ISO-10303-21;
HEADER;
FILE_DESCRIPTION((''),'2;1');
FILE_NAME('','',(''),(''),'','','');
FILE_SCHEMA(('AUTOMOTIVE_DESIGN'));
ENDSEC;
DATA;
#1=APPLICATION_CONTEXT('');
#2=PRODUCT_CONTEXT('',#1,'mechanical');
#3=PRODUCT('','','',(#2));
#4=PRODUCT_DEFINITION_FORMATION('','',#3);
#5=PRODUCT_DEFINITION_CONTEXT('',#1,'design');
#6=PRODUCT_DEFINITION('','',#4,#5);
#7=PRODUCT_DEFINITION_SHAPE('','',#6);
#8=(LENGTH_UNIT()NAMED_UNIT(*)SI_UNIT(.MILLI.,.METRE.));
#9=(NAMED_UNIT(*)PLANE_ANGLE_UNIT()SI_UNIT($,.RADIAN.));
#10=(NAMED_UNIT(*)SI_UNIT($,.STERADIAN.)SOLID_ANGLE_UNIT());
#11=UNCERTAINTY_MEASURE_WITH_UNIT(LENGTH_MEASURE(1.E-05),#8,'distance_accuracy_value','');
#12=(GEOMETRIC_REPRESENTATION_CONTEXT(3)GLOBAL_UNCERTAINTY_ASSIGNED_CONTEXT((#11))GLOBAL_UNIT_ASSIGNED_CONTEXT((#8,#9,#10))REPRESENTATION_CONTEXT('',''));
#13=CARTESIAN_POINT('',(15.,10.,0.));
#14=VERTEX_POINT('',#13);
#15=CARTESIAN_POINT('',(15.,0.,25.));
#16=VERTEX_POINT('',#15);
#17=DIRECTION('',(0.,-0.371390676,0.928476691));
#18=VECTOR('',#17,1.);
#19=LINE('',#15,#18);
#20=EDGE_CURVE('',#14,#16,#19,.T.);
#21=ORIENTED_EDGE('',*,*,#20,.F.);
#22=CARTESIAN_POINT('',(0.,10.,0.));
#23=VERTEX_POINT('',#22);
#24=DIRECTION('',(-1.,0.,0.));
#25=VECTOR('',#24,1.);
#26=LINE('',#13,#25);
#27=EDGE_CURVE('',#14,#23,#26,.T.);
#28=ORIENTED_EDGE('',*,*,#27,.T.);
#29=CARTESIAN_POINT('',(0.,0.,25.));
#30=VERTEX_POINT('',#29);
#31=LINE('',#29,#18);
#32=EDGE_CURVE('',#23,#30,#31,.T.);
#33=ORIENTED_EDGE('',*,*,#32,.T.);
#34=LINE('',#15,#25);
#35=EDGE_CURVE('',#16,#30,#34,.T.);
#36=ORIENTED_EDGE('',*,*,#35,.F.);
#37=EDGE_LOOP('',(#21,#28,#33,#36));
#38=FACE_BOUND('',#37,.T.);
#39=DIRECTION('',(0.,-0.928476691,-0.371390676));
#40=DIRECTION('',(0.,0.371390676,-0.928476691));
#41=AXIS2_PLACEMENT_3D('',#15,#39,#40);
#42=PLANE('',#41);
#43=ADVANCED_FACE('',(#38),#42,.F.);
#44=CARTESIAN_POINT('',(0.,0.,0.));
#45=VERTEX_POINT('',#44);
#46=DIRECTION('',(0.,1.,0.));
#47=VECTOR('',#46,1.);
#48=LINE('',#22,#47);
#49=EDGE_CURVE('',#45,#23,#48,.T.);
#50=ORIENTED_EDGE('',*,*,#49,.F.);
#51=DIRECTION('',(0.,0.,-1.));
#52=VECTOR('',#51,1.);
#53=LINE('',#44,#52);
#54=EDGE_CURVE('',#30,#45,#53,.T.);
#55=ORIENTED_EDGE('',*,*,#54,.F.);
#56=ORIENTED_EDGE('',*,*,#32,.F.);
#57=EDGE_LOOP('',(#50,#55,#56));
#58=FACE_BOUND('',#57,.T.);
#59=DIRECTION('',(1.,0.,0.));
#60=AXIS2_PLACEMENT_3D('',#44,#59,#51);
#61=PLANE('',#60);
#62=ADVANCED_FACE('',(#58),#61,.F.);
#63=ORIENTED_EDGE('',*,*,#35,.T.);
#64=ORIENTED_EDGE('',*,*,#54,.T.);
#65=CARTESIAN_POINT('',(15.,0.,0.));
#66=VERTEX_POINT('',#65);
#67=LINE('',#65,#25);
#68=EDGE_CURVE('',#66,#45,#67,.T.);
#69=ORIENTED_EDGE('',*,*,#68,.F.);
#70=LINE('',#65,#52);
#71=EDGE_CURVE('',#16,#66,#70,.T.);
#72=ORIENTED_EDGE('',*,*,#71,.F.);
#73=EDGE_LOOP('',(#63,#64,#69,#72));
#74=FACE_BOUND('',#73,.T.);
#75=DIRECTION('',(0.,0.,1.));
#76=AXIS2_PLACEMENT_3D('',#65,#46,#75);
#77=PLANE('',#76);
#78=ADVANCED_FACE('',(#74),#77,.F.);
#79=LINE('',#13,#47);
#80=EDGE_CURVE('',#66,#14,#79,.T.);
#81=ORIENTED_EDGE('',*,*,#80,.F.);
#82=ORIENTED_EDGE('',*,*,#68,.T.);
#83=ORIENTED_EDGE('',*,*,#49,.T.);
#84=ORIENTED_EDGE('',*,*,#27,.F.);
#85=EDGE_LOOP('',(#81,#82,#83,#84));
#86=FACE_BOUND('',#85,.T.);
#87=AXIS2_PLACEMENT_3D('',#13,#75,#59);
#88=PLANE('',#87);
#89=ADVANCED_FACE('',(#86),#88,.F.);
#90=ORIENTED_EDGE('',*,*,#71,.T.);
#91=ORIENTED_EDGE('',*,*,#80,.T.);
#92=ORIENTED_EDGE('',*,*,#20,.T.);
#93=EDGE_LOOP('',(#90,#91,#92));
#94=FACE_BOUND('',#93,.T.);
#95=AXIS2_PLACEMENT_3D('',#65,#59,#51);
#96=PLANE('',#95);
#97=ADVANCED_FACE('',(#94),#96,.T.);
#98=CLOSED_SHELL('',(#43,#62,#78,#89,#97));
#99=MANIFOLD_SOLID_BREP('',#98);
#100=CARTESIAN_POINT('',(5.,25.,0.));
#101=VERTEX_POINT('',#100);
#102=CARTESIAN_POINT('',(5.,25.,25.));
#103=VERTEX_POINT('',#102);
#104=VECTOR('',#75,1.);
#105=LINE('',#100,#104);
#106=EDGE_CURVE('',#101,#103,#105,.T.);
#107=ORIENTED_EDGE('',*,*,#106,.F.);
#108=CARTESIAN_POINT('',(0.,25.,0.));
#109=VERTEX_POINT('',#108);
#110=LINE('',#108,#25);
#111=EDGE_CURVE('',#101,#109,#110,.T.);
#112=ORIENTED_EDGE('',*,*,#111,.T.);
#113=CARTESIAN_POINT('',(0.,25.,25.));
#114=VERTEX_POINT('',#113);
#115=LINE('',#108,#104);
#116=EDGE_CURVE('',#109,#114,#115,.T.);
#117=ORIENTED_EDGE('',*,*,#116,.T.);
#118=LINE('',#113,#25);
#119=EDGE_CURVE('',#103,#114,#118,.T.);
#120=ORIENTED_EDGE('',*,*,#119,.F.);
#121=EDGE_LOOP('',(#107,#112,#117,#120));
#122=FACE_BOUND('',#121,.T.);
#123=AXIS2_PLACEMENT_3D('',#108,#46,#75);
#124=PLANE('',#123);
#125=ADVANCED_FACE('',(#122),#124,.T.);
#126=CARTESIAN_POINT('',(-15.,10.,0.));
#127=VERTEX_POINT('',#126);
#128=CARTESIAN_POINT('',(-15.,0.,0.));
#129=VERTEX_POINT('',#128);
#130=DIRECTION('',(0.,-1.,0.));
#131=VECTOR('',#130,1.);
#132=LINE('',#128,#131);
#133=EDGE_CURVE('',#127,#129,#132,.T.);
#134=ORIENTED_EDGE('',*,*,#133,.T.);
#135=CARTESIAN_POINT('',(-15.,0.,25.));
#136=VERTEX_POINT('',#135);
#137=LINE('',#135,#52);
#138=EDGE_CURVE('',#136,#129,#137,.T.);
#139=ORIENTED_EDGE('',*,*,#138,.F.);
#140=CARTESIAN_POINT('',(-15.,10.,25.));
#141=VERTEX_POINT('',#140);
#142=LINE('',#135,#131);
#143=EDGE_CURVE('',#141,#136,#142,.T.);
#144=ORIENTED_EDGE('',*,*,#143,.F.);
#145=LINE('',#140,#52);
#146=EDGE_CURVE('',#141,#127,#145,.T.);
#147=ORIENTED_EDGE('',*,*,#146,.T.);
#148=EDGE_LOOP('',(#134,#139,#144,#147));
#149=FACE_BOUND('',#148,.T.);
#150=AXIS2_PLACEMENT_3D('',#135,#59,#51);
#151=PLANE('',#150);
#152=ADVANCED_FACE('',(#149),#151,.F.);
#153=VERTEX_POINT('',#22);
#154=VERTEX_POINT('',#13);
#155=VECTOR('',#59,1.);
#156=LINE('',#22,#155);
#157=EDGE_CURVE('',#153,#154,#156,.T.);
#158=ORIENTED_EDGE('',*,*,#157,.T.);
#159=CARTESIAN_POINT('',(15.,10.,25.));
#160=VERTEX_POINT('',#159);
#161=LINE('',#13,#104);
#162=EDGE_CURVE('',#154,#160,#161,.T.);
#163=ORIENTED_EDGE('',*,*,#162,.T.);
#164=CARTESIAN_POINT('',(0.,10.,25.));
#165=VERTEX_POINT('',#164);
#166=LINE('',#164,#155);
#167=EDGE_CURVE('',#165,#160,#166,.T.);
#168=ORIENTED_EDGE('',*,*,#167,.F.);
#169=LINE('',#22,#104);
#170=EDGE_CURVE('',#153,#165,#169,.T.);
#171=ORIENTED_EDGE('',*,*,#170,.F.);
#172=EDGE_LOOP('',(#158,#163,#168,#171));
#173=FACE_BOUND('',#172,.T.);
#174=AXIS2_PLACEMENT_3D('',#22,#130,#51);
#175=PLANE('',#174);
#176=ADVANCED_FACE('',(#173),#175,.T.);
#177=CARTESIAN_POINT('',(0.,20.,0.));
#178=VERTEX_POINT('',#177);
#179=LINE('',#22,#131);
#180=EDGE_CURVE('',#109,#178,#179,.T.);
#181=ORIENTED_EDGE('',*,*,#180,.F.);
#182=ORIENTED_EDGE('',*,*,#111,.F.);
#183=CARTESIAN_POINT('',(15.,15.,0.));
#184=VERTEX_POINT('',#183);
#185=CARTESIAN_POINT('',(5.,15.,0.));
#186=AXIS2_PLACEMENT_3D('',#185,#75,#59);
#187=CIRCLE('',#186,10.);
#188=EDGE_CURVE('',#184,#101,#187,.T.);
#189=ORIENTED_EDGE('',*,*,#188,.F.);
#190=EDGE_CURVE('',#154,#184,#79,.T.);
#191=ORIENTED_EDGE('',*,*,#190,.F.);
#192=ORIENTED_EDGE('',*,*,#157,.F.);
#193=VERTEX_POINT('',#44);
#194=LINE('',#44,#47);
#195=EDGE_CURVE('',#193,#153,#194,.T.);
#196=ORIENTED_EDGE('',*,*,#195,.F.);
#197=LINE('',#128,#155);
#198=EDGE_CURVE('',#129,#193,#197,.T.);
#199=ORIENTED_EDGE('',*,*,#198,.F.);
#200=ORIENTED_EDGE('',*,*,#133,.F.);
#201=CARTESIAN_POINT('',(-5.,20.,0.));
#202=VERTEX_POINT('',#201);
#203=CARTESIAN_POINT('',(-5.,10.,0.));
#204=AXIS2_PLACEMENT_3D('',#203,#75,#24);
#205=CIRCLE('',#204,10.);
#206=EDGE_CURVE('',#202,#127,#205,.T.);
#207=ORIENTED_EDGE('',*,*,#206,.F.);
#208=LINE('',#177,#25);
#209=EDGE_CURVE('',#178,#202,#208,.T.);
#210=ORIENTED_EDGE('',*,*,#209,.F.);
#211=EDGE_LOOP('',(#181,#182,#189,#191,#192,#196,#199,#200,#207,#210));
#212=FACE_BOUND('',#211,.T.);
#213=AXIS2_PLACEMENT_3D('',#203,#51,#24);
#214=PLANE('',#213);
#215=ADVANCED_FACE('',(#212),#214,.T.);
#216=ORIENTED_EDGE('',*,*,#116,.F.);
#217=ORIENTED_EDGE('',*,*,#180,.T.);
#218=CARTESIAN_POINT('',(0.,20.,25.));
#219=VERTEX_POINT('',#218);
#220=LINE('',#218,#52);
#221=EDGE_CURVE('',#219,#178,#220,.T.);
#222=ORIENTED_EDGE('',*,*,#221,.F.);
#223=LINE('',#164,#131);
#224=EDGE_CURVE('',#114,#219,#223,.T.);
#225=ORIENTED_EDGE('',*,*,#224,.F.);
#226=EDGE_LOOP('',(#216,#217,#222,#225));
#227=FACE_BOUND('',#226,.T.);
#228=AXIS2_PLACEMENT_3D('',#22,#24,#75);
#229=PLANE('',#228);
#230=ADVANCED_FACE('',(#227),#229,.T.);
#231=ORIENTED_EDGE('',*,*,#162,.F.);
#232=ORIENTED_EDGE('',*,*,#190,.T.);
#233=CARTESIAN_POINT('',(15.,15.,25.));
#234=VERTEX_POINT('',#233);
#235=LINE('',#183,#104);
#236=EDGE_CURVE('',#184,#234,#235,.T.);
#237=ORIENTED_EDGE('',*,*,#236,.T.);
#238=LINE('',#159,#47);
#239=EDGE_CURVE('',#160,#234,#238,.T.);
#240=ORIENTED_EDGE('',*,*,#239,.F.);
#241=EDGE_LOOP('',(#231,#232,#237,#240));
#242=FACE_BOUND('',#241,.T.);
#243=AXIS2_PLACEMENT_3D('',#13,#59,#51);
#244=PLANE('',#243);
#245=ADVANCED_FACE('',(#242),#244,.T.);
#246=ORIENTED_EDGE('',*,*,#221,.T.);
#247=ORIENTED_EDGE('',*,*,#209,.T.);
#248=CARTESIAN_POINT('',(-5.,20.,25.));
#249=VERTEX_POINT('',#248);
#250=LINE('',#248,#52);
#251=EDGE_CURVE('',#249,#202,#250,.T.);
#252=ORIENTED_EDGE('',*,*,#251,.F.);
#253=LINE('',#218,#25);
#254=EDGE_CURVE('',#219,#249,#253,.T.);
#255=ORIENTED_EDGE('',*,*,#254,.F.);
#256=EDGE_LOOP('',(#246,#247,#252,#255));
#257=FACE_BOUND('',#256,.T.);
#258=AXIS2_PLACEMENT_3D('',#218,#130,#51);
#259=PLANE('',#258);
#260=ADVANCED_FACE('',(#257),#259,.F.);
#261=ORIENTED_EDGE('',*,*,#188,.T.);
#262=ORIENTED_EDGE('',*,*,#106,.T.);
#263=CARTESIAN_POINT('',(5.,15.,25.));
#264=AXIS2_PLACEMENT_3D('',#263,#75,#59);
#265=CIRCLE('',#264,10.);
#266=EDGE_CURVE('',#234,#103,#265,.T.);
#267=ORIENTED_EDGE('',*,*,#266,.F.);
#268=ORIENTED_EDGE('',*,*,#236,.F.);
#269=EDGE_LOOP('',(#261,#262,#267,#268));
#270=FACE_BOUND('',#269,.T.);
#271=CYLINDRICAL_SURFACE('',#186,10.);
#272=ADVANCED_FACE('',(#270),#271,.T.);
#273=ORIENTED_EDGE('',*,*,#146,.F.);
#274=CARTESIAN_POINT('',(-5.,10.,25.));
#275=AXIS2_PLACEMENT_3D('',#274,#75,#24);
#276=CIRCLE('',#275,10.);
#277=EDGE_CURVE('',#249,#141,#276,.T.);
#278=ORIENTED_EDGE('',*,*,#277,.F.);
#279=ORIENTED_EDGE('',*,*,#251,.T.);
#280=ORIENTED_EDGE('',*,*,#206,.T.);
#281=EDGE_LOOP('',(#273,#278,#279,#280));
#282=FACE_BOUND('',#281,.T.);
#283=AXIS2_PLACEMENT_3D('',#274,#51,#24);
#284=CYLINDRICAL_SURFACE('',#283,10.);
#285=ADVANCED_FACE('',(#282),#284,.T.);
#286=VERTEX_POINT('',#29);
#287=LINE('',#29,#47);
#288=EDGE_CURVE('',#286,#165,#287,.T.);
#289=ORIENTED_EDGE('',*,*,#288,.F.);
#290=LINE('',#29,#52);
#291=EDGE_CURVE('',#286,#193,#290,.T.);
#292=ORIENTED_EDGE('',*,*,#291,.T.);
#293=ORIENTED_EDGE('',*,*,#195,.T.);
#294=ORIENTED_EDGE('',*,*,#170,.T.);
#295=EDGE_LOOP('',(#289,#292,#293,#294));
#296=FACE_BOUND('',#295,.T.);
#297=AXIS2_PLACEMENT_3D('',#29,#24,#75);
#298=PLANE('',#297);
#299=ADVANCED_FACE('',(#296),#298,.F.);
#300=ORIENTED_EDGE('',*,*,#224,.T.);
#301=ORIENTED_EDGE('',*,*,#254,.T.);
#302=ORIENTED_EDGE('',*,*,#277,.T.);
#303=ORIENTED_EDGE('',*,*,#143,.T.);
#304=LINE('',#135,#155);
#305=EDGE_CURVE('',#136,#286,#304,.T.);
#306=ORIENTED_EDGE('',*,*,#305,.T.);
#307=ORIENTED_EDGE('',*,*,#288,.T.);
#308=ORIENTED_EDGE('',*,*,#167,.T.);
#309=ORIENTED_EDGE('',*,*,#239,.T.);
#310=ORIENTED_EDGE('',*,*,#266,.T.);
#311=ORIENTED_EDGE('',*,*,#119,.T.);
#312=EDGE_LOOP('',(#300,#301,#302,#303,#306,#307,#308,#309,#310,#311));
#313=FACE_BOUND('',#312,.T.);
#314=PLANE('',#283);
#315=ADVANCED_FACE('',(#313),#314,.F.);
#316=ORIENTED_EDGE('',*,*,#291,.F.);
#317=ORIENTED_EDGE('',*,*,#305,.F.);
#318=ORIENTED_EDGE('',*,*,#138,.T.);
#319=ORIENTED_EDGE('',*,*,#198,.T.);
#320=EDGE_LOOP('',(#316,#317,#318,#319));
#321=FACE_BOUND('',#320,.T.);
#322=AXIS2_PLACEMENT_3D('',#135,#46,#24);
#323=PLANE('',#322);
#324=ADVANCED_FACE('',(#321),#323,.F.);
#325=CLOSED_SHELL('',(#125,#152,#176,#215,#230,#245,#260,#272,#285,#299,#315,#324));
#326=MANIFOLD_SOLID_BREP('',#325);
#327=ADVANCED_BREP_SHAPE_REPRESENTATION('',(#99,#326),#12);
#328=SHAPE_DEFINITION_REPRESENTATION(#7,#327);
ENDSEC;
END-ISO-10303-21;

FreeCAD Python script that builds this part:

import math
import FreeCAD as App
import Part
import Sketcher
from FreeCAD import Vector

doc = App.newDocument("Part")
body = doc.addObject("PartDesign::Body", "Body")

# Sketch on XY plane
sketch1 = body.newObject("Sketcher::SketchObject", "Sketch")
sketch1.AttachmentSupport = (doc.getObject("XY_Plane"), [""])
sketch1.MapMode = "FlatFace"
sketch1.addGeometry([
    Part.LineSegment(Vector(-15, 0, 0), Vector(0, 0, 0)),  # 0
    Part.LineSegment(Vector(0, 0, 0), Vector(0, 20, 0)),  # 1
    Part.LineSegment(Vector(0, 20, 0), Vector(-5, 20, 0)),  # 2
    Part.ArcOfCircle(Part.Circle(Vector(-5, 10, 0), Vector(0, 0, 1), 10), math.radians(90), math.radians(180)),  # 3
    Part.LineSegment(Vector(-15, 10, 0), Vector(-15, 0, 0)),  # 4
], False)
sketch1.addConstraint([
    Sketcher.Constraint("Coincident", 0, 2, 1, 1),
    Sketcher.Constraint("Coincident", 1, 2, 2, 1),
    Sketcher.Constraint("Tangent", 2, 2, 3, 1),
    Sketcher.Constraint("Tangent", 3, 2, 4, 1),
    Sketcher.Constraint("Coincident", 4, 2, 0, 1),
    Sketcher.Constraint("Horizontal", 0),
    Sketcher.Constraint("Vertical", 1),
    Sketcher.Constraint("Horizontal", 2),
    Sketcher.Constraint("Vertical", 4),
    Sketcher.Constraint("Coincident", 0, 2, -1, 1),
    Sketcher.Constraint("Radius", 3, 10.0),
    Sketcher.Constraint("DistanceX", 0, 1, 0, 2, 15.0),
    Sketcher.Constraint("DistanceY", 1, 1, 1, 2, 20.0),
])
pad1 = body.newObject("PartDesign::Pad", "Pad")
pad1.Profile = sketch1
pad1.Length = 25

# Sketch on XY plane
sketch2 = body.newObject("Sketcher::SketchObject", "Sketch001")
sketch2.AttachmentSupport = (doc.getObject("XY_Plane"), [""])
sketch2.MapMode = "FlatFace"
sketch2.AttachmentOffset = App.Placement(Vector(0, 0, 25), App.Rotation())
sketch2.addGeometry([
    Part.LineSegment(Vector(0, 25, 0), Vector(0, 10, 0)),  # 0
    Part.LineSegment(Vector(0, 10, 0), Vector(15, 10, 0)),  # 1
    Part.LineSegment(Vector(15, 10, 0), Vector(15, 15, 0)),  # 2
    Part.ArcOfCircle(Part.Circle(Vector(5, 15, 0), Vector(0, 0, 1), 10), math.radians(0), math.radians(90)),  # 3
    Part.LineSegment(Vector(5, 25, 0), Vector(0, 25, 0)),  # 4
], False)
sketch2.addConstraint([
    Sketcher.Constraint("Coincident", 0, 2, 1, 1),
    Sketcher.Constraint("Coincident", 1, 2, 2, 1),
    Sketcher.Constraint("Tangent", 2, 2, 3, 1),
    Sketcher.Constraint("Tangent", 3, 2, 4, 1),
    Sketcher.Constraint("Coincident", 4, 2, 0, 1),
    Sketcher.Constraint("Vertical", 0),
    Sketcher.Constraint("Horizontal", 1),
    Sketcher.Constraint("Vertical", 2),
    Sketcher.Constraint("Horizontal", 4),
    Sketcher.Constraint("PointOnObject", 0, 2, -2),
    Sketcher.Constraint("Equal", 1, 0),
    Sketcher.Constraint("Radius", 3, 10.0),
    Sketcher.Constraint("DistanceX", 1, 1, 1, 2, 15.0),
    Sketcher.Constraint("DistanceY", -1, 1, 3, 3, 15.0),
])
pad2 = body.newObject("PartDesign::Pad", "Pad001")
pad2.Profile = sketch2
pad2.Length = 25
pad2.Reversed = True
body2 = doc.addObject("PartDesign::Body", "Body001")

# Sketch on YZ plane
sketch3 = body2.newObject("Sketcher::SketchObject", "Sketch002")
sketch3.AttachmentSupport = (doc.getObject("YZ_Plane001"), [""])
sketch3.MapMode = "FlatFace"
sketch3.addGeometry([
    Part.LineSegment(Vector(10, 0, 0), Vector(0, 25, 0)),
    Part.LineSegment(Vector(0, 25, 0), Vector(0, 0, 0)),
    Part.LineSegment(Vector(0, 0, 0), Vector(10, 0, 0)),
], False)
sketch3.addConstraint([
    Sketcher.Constraint("Coincident", 0, 2, 1, 1),
    Sketcher.Constraint("Coincident", 1, 2, 2, 1),
    Sketcher.Constraint("Coincident", 2, 2, 0, 1),
    Sketcher.Constraint("Vertical", 1),
    Sketcher.Constraint("Horizontal", 2),
    Sketcher.Constraint("Coincident", 1, 2, -1, 1),
    Sketcher.Constraint("DistanceX", 2, 1, 2, 2, 10.0),
    Sketcher.Constraint("DistanceY", 1, 2, 1, 1, 25.0),
])
pad3 = body2.newObject("PartDesign::Pad", "Pad002")
pad3.Profile = sketch3
pad3.Length = 15

doc.recompute()
